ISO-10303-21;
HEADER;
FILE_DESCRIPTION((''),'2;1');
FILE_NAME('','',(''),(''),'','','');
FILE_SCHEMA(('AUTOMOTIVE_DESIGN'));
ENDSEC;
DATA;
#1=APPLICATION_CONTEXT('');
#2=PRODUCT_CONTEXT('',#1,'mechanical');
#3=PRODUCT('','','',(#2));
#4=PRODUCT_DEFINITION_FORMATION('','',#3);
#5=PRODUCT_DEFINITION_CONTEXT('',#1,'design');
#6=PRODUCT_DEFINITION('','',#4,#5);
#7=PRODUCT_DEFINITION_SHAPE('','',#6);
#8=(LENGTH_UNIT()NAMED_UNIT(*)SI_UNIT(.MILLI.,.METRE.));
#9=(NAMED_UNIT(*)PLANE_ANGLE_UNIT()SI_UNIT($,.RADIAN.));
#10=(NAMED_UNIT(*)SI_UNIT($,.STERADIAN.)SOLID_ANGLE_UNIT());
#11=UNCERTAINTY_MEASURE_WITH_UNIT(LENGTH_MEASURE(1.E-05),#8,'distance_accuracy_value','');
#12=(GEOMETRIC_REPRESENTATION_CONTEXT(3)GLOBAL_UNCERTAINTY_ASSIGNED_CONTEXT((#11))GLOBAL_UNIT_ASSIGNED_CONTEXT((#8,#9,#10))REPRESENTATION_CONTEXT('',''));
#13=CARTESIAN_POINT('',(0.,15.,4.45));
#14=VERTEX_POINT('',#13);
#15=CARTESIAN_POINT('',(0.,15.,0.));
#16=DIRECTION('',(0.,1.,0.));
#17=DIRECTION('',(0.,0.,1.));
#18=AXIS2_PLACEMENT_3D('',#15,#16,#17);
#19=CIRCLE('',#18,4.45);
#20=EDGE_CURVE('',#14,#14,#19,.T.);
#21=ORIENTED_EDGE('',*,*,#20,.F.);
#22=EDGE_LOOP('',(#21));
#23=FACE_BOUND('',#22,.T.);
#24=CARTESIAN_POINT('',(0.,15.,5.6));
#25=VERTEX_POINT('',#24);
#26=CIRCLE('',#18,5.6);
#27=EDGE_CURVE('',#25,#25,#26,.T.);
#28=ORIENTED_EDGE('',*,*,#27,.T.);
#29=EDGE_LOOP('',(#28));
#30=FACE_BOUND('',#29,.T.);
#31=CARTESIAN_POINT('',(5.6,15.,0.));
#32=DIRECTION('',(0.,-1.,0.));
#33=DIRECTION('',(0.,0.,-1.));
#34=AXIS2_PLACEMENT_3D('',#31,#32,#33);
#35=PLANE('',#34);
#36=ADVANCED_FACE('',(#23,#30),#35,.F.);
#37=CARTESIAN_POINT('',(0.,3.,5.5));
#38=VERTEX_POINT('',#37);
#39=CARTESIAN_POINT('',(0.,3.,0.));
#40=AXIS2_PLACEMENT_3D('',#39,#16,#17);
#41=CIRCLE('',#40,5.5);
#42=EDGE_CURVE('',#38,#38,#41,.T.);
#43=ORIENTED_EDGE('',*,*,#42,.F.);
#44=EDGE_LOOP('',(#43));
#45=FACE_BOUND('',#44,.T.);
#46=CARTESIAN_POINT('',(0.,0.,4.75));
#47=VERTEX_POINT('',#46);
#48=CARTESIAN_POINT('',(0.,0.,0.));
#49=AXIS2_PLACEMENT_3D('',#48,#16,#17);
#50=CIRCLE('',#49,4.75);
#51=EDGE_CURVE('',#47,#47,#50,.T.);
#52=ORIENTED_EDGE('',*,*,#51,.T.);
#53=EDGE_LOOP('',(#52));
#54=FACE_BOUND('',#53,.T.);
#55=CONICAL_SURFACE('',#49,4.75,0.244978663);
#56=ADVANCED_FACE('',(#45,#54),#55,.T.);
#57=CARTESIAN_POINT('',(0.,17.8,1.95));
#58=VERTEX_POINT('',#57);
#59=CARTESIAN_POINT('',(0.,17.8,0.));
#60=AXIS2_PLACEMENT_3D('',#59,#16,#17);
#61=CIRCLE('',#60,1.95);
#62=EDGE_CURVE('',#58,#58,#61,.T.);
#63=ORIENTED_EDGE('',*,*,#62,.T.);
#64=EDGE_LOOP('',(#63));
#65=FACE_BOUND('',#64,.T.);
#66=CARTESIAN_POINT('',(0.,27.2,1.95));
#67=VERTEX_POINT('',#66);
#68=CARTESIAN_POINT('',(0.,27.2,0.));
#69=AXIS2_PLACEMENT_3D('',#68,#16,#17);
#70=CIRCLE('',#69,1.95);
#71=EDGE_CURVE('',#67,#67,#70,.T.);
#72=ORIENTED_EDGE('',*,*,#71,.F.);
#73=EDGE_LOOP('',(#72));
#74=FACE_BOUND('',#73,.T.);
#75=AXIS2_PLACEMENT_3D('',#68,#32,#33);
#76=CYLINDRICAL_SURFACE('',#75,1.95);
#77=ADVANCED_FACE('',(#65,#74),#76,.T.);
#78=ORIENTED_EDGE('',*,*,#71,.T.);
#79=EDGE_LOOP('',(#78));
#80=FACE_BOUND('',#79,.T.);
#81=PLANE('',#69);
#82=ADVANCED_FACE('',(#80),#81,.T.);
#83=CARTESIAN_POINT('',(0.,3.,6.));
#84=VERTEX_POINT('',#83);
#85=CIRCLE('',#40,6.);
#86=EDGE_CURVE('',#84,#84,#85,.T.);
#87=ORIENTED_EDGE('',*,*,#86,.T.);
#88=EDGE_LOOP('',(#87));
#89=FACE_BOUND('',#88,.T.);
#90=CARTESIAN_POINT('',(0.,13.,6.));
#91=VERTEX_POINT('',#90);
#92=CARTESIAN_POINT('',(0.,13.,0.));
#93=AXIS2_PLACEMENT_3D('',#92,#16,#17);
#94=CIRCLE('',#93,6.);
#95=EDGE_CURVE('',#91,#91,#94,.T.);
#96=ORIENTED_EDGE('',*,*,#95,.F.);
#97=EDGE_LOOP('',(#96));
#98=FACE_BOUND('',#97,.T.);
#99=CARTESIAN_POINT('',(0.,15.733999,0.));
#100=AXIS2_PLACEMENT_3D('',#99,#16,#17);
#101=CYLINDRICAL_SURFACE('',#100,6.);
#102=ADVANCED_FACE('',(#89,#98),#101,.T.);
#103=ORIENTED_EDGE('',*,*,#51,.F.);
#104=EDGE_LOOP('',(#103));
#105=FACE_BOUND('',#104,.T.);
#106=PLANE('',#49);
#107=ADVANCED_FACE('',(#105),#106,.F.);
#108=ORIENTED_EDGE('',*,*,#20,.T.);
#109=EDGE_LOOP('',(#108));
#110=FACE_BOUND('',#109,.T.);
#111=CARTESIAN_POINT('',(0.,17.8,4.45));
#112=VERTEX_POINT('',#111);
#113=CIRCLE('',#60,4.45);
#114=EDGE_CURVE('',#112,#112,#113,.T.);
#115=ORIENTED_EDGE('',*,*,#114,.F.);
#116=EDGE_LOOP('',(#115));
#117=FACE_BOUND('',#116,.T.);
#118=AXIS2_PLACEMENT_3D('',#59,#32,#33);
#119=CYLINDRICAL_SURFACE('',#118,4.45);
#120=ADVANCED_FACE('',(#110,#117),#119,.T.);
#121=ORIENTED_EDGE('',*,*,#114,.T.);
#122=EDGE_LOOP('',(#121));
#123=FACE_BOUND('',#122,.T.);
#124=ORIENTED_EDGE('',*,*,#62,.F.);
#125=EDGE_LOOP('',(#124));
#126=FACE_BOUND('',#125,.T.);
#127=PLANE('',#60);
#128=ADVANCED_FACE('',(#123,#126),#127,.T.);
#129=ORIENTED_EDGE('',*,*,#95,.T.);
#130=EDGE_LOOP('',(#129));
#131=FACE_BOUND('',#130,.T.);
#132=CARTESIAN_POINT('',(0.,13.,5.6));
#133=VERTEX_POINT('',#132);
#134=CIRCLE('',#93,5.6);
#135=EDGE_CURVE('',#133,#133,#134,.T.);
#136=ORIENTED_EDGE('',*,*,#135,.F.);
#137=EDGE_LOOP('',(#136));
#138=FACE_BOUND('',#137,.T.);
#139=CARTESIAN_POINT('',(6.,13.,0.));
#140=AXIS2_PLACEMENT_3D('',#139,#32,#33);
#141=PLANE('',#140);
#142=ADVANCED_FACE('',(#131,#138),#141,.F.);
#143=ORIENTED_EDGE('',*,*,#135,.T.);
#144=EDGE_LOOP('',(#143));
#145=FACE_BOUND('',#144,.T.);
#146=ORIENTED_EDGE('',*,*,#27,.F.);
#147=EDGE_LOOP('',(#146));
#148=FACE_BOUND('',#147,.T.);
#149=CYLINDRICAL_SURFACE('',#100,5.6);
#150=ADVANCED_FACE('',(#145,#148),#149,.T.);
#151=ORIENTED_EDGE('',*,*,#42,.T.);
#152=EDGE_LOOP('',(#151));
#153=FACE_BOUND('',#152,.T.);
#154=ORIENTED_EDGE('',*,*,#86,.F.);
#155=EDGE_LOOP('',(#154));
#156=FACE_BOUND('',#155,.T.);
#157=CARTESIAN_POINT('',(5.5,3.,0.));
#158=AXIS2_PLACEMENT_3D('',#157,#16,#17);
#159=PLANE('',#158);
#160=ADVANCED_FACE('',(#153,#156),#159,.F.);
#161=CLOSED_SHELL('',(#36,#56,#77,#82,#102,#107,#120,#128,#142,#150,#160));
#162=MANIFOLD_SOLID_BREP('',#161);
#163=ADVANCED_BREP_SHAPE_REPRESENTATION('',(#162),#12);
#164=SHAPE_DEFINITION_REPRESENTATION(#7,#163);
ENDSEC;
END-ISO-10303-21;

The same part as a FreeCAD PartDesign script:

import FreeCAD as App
import Part
import Sketcher
from FreeCAD import Vector


def add_polygon(sketch, points):
    """Adds a closed chain of lines whose ends are joined by coincident constraints."""
    first, n = sketch.GeometryCount, len(points)
    for a, b in zip(points, points[1:] + points[:1]):
        sketch.addGeometry(Part.LineSegment(App.Vector(*a, 0), App.Vector(*b, 0)), False)
    for i in range(n):
        sketch.addConstraint(Sketcher.Constraint("Coincident", first + i, 2, first + (i + 1) % n, 1))

doc = App.newDocument("Part")
body = doc.addObject("PartDesign::Body", "Body")

sketch1 = body.newObject("Sketcher::SketchObject", "Sketch")
sketch1.AttachmentSupport = (doc.getObject("XY_Plane"), [""])
sketch1.MapMode = "FlatFace"
add_polygon(sketch1, [(0, 0), (4.75, 0), (5.5, 3), (6, 3), (6, 13), (5.6, 13), (5.6, 15), (0, 15)])
sketch1.addConstraint([
    Sketcher.Constraint("Horizontal", 0),
    Sketcher.Constraint("Horizontal", 2),
    Sketcher.Constraint("Vertical", 3),
    Sketcher.Constraint("Horizontal", 4),
    Sketcher.Constraint("Vertical", 5),
    Sketcher.Constraint("Horizontal", 6),
    Sketcher.Constraint("Vertical", 7),
    Sketcher.Constraint("Coincident", 7, 2, -1, 1),
    Sketcher.Constraint("DistanceY", 3, 1, 3, 2, 10.0),
    Sketcher.Constraint("DistanceY", 5, 1, 5, 2, 2.0),
    Sketcher.Constraint("DistanceY", 7, 2, 7, 1, 15.0),
    Sketcher.Constraint("DistanceX", 2, 1, 2, 2, 0.5),
    Sketcher.Constraint("DistanceX", 4, 2, 4, 1, 0.4),
    Sketcher.Constraint("DistanceX", 6, 2, 6, 1, 5.6),
    Sketcher.Constraint("DistanceX", 0, 1, 0, 2, 4.75),
])
revolution = body.newObject("PartDesign::Revolution", "Revolution")
revolution.Profile = sketch1
revolution.ReferenceAxis = (sketch1, ["V_Axis"])
revolution.Angle = 360

sketch2 = body.newObject("Sketcher::SketchObject", "Sketch001")
sketch2.AttachmentSupport = (doc.getObject("XZ_Plane"), [""])
sketch2.MapMode = "FlatFace"
sketch2.AttachmentOffset = App.Placement(Vector(0, 0, -15), App.Rotation())
sketch2.addGeometry(Part.Circle(Vector(0, 0, 0), Vector(0, 0, 1), 4.5), False)
sketch2.addConstraint([
    Sketcher.Constraint("Coincident", 0, 3, -1, 1),
    Sketcher.Constraint("Diameter", 0, 8.9),
])
pad1 = body.newObject("PartDesign::Pad", "Pad")
pad1.Profile = sketch2
pad1.Length = 2.8
pad1.Reversed = True

sketch3 = body.newObject("Sketcher::SketchObject", "Sketch002")
sketch3.AttachmentSupport = (doc.getObject("XZ_Plane"), [""])
sketch3.MapMode = "FlatFace"
sketch3.AttachmentOffset = App.Placement(Vector(0, 0, -17.8), App.Rotation())
sketch3.addGeometry(Part.Circle(Vector(0, 0, 0), Vector(0, 0, 1), 1.9), False)
sketch3.addConstraint([
    Sketcher.Constraint("Coincident", 0, 3, -1, 1),
    Sketcher.Constraint("Diameter", 0, 3.9),
])
pad2 = body.newObject("PartDesign::Pad", "Pad001")
pad2.Profile = sketch3
pad2.Length = 9.4
pad2.Reversed = True

doc.recompute()
